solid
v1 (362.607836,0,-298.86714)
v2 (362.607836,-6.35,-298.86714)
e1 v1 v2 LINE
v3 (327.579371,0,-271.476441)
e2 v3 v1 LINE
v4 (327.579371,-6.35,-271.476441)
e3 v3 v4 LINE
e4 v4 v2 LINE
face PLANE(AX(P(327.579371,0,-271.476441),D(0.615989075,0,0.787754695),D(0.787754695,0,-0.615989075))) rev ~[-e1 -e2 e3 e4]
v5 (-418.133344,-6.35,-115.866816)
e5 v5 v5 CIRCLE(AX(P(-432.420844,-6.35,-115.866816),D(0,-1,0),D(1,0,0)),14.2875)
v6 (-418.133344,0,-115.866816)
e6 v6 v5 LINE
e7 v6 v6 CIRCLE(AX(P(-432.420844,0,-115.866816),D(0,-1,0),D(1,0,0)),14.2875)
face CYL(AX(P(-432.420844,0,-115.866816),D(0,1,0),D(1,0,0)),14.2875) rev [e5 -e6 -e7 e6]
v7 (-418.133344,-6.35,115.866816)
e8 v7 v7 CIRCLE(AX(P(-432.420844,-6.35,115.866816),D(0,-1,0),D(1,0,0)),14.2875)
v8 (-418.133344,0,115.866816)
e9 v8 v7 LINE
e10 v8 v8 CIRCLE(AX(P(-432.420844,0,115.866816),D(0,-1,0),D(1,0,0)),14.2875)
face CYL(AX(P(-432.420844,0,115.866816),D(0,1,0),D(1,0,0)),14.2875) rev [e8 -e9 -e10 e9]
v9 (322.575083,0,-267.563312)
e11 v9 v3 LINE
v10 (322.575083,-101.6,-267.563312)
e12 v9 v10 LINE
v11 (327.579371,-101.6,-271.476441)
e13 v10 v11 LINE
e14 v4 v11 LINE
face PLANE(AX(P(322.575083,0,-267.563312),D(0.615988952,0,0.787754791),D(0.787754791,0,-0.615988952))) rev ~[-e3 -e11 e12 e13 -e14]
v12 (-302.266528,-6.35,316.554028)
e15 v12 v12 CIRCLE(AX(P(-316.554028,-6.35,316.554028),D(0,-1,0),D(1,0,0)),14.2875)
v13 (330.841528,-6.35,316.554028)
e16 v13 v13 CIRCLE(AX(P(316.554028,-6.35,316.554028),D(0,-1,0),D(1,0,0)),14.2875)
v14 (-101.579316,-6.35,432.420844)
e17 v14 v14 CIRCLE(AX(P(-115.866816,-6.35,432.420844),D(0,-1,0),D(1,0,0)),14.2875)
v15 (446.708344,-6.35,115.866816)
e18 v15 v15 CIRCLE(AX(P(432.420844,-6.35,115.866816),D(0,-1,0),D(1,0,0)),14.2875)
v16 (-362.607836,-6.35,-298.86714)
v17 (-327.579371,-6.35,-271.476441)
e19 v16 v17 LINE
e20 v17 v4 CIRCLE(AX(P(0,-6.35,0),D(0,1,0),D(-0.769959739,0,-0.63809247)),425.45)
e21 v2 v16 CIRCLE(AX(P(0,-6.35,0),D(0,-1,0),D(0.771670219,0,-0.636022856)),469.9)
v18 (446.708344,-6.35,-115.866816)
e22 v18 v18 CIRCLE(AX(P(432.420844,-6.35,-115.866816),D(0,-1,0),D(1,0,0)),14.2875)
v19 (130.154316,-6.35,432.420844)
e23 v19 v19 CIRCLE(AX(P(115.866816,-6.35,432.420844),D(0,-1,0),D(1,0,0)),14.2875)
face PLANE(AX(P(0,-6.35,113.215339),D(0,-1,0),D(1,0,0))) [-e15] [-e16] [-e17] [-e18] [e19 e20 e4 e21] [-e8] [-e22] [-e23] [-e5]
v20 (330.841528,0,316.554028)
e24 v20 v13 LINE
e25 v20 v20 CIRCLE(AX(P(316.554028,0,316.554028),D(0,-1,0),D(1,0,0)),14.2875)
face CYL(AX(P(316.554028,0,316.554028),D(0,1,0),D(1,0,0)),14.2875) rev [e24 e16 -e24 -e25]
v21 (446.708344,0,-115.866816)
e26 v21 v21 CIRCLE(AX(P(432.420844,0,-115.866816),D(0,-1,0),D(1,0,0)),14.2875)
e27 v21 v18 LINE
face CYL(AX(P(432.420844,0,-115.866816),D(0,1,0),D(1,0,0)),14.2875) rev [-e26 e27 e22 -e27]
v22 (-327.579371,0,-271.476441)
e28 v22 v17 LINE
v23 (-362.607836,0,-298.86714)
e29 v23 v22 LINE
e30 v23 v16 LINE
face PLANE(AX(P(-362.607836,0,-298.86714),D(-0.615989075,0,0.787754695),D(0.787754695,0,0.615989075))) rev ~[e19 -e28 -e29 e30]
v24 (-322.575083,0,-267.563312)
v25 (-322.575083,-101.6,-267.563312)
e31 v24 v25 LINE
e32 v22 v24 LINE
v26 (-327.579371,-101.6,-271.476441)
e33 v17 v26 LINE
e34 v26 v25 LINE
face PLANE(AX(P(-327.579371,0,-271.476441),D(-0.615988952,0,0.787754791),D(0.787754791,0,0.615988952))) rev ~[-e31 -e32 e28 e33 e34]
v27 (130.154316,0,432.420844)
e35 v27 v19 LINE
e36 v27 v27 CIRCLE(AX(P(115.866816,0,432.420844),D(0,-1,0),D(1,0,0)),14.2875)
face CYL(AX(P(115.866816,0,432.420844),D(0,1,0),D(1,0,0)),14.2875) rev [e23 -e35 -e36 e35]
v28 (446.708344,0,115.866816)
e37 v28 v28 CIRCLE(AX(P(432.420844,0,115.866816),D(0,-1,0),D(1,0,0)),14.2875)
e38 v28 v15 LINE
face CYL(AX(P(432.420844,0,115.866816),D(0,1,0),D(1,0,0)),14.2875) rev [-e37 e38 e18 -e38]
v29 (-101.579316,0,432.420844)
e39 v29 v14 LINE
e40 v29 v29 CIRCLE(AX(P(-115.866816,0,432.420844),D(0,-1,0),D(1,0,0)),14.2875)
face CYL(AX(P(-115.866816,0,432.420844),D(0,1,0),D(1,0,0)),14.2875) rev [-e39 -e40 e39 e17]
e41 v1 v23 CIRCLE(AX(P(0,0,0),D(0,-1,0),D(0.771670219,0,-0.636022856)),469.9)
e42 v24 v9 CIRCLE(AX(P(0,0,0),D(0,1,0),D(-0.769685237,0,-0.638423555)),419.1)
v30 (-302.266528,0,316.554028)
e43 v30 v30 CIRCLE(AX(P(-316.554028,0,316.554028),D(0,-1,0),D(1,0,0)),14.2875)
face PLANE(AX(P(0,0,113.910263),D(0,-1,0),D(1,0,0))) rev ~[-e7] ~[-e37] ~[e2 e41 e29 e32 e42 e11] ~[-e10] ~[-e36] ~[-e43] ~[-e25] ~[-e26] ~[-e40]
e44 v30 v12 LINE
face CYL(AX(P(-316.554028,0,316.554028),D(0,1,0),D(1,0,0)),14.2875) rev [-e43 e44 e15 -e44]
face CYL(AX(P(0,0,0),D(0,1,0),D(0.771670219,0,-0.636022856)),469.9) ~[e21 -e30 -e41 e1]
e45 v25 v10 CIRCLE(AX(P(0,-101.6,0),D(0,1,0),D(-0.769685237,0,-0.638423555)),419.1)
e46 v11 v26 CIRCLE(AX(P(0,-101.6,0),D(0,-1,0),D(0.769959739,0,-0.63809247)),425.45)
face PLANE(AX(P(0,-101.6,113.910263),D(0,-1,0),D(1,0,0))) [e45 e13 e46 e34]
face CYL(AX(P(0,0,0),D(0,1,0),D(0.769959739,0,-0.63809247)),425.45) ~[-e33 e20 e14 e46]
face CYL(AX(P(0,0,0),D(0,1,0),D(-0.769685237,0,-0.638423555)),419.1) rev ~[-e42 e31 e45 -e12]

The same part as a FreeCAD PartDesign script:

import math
import FreeCAD as App
import Part
import Sketcher
from FreeCAD import Vector
Q = App.Units.Quantity

doc = App.newDocument("Part")
body = doc.addObject("PartDesign::Body", "Body")

# Sketch on XZ plane
sketch1 = body.newObject("Sketcher::SketchObject", "Sketch")
sketch1.AttachmentSupport = (doc.getObject("XZ_Plane"), [""])
sketch1.MapMode = "FlatFace"
sketch1.addGeometry([
    Part.LineSegment(Vector(328, -271, 0), Vector(363, -299, 0)),  # 0
    Part.ArcOfCircle(Part.Circle(Vector(0, 0, 0), Vector(0, 0, 1), 470), math.radians(-39), math.radians(219)),  # 1
    Part.LineSegment(Vector(-363, -299, 0), Vector(-328, -271, 0)),  # 2
    Part.ArcOfCircle(Part.Circle(Vector(0, 0, 0), Vector(0, 0, 1), 425), math.radians(-40), math.radians(220)),  # 3
    Part.Circle(Vector(-432, -116, 0), Vector(0, 0, 1), 14),  # 4
    Part.Circle(Vector(-432, 116, 0), Vector(0, 0, 1), 14),  # 5
    Part.Circle(Vector(432, -116, 0), Vector(0, 0, 1), 14),  # 6
    Part.Circle(Vector(432, 116, 0), Vector(0, 0, 1), 14),  # 7
    Part.Circle(Vector(-317, 317, 0), Vector(0, 0, 1), 14),  # 8
    Part.Circle(Vector(-116, 432, 0), Vector(0, 0, 1), 14),  # 9
    Part.Circle(Vector(116, 432, 0), Vector(0, 0, 1), 14),  # 10
    Part.Circle(Vector(317, 317, 0), Vector(0, 0, 1), 14),  # 11
], False)
sketch1.addConstraint([
    Sketcher.Constraint("Coincident", 0, 2, 1, 1),
    Sketcher.Constraint("Coincident", 1, 2, 2, 1),
    Sketcher.Constraint("Coincident", 2, 2, 3, 2),
    Sketcher.Constraint("Coincident", 3, 1, 0, 1),
    Sketcher.Constraint("Coincident", 1, 3, -1, 1),
    Sketcher.Constraint("Coincident", 3, 3, -1, 1),
    Sketcher.Constraint("Equal", 4, 5),
    Sketcher.Constraint("Equal", 5, 6),
    Sketcher.Constraint("Equal", 6, 7),
    Sketcher.Constraint("Equal", 7, 8),
    Sketcher.Constraint("Equal", 8, 9),
    Sketcher.Constraint("Equal", 9, 10),
    Sketcher.Constraint("Equal", 10, 11),
    Sketcher.Constraint("Symmetric", 5, 3, 6, 3, -1, 1),
    Sketcher.Constraint("Symmetric", 4, 3, 7, 3, -1, 1),
    Sketcher.Constraint("Symmetric", 4, 3, 6, 3, -2),
    Sketcher.Constraint("Symmetric", 9, 3, 10, 3, -2),
    Sketcher.Constraint("Symmetric", 8, 3, 11, 3, -2),
    Sketcher.Constraint("Horizontal", 0, 2, 1, 2),
    Sketcher.Constraint("Horizontal", 2, 2, 3, 1),
    Sketcher.Constraint("Radius", 1, Q("18.5 in")),
    Sketcher.Constraint("Radius", 3, Q("16.75 in")),
    Sketcher.Constraint("Diameter", 4, Q("1.125 in")),
    Sketcher.Constraint("DistanceY", 1, 2, 2, 2, Q("27.390699 mm")),
    Sketcher.Constraint("DistanceX", 8, 3, -1, 1, Q("316.554028 mm")),
    Sketcher.Constraint("DistanceY", -1, 1, 8, 3, Q("316.554028 mm")),
    Sketcher.Constraint("DistanceY", 0, 2, -1, 1, Q("298.86714 mm")),
    Sketcher.Constraint("DistanceY", 4, 3, 5, 3, Q("231.733632 mm")),
    Sketcher.Constraint("DistanceX", 4, 3, 6, 3, Q("864.841688 mm")),
    Sketcher.Constraint("DistanceX", 5, 3, 9, 3, Q("316.554028 mm")),
    Sketcher.Constraint("DistanceY", 5, 3, 9, 3, Q("316.554028 mm")),
])
pad1 = body.newObject("PartDesign::Pad", "Pad")
pad1.Profile = sketch1
pad1.Length = Q("0.25 in")

# Sketch on XZ plane
sketch2 = body.newObject("Sketcher::SketchObject", "Sketch001")
sketch2.AttachmentSupport = (doc.getObject("XZ_Plane"), [""])
sketch2.MapMode = "FlatFace"
sketch2.addGeometry([
    Part.LineSegment(Vector(323, -268, 0), Vector(328, -271, 0)),
    Part.ArcOfCircle(Part.Circle(Vector(0, 0, 0), Vector(0, 0, 1), 425), math.radians(-40), math.radians(220)),
    Part.LineSegment(Vector(-328, -271, 0), Vector(-323, -268, 0)),
    Part.ArcOfCircle(Part.Circle(Vector(0, 0, 0), Vector(0, 0, 1), 419), math.radians(-40), math.radians(220)),
], False)
sketch2.addConstraint([
    Sketcher.Constraint("Coincident", 0, 2, 1, 1),
    Sketcher.Constraint("Coincident", 1, 2, 2, 1),
    Sketcher.Constraint("Coincident", 2, 2, 3, 2),
    Sketcher.Constraint("Coincident", 3, 1, 0, 1),
    Sketcher.Constraint("Coincident", 1, 3, -1, 1),
    Sketcher.Constraint("Coincident", 3, 3, -1, 1),
    Sketcher.Constraint("Horizontal", 0, 2, 1, 2),
    Sketcher.Constraint("Horizontal", 2, 2, 3, 1),
    Sketcher.Constraint("Radius", 3, Q("16.5 in")),
    Sketcher.Constraint("Radius", 1, Q("16.75 in")),
    Sketcher.Constraint("DistanceX", -1, 1, 0, 2, Q("327.579371 mm")),
    Sketcher.Constraint("DistanceY", 2, 2, -1, 1, Q("267.563312 mm")),
])
pad2 = body.newObject("PartDesign::Pad", "Pad001")
pad2.Profile = sketch2
pad2.Length = Q("4 in")

doc.recompute()
